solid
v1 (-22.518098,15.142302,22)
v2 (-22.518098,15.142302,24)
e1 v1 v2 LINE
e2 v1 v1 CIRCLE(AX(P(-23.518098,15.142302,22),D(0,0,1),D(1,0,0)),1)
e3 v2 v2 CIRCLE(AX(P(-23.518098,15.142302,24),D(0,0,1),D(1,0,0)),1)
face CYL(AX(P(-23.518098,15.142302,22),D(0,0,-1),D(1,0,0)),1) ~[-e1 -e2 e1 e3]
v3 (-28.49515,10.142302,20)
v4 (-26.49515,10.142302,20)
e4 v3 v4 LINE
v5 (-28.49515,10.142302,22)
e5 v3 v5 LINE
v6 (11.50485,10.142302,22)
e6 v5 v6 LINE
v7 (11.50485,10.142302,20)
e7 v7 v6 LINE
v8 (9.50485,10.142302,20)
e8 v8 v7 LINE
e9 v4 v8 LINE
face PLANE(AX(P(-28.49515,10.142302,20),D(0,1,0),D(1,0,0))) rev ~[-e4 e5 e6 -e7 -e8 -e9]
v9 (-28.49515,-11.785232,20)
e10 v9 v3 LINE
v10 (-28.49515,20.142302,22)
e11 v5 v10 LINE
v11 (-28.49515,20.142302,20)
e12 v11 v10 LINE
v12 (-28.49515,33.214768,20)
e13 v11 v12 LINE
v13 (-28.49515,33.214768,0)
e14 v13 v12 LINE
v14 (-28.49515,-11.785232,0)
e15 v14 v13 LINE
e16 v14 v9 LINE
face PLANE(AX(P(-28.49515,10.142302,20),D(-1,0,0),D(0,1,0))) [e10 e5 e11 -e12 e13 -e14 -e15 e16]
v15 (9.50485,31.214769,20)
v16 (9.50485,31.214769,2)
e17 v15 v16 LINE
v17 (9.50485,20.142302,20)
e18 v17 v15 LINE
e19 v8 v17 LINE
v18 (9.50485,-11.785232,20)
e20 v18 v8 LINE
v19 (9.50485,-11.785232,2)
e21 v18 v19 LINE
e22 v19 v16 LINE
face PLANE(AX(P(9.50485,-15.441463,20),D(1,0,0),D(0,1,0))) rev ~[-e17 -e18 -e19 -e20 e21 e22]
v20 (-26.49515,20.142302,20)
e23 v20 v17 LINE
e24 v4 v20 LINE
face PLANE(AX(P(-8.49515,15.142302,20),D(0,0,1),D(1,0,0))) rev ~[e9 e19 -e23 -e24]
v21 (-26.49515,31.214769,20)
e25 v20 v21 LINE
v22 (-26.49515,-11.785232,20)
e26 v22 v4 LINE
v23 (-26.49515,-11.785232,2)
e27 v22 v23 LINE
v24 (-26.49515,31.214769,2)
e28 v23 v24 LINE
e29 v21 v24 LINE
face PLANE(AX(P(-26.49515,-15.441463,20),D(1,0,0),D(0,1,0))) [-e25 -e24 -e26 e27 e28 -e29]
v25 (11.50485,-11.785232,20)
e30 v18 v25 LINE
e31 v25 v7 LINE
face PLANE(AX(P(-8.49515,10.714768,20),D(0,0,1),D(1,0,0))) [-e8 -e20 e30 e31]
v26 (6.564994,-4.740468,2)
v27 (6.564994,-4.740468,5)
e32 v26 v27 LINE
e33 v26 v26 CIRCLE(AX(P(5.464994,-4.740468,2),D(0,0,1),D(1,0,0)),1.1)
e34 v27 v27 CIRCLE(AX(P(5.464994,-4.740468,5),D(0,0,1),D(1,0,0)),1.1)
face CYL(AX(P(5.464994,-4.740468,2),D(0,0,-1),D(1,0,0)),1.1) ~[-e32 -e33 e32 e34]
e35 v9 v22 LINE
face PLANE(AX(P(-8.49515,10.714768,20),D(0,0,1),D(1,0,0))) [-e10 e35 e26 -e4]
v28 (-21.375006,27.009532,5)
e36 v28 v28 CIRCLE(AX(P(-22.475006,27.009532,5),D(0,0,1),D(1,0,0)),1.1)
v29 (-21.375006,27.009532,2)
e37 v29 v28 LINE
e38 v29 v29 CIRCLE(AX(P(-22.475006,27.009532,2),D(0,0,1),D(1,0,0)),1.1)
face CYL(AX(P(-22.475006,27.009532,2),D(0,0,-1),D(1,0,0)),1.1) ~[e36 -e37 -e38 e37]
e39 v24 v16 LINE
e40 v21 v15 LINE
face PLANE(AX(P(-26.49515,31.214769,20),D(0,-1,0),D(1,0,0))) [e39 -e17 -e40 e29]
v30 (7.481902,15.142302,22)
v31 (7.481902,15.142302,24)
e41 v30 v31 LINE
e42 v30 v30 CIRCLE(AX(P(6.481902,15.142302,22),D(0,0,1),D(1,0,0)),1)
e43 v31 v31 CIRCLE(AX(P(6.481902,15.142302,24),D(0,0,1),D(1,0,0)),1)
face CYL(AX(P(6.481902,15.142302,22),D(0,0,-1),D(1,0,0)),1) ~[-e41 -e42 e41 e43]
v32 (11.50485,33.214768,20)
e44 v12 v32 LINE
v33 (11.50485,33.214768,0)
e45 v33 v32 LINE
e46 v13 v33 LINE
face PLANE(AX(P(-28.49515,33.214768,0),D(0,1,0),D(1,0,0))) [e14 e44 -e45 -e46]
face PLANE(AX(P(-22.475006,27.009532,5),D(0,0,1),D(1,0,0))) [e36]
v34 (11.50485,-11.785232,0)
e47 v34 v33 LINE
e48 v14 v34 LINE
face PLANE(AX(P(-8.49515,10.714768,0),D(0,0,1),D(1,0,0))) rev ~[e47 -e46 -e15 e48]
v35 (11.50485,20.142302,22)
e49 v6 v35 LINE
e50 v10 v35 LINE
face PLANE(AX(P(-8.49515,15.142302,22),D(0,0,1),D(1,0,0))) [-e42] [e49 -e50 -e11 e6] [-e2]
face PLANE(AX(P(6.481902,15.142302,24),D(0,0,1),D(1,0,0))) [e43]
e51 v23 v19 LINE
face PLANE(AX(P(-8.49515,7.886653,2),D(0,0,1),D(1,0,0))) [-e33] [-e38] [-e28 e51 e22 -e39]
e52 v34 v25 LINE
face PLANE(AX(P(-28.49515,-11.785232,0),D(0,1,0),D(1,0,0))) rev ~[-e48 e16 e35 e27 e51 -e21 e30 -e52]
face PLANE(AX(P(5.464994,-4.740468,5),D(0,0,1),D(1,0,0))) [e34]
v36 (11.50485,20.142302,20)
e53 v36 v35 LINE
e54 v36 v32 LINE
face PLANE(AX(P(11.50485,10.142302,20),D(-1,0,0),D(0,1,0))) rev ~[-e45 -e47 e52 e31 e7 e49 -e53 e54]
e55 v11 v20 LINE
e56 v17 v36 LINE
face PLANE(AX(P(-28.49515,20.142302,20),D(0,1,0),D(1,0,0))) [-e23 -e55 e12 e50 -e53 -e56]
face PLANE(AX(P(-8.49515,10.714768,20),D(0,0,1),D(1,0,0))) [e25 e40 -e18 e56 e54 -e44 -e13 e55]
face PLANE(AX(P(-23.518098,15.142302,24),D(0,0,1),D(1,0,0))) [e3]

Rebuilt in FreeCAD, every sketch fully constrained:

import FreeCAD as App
import Part
import Sketcher

doc = App.newDocument("Part")
params = doc.addObject("Spreadsheet::Sheet", "Params")
for row, (alias, value) in enumerate([
    ("sketch1_width", "40 mm"),
    ("sketch1_height", "45 mm"),
    ("pad1_length", "20 mm"),
    ("sketch2_width", "36 mm"),
    ("pocket1_length", "18 mm"),
    ("sketch3_diameter", "2.2 mm"),
    ("pad2_length", "3 mm"),
    ("sketch4_width", "40 mm"),
    ("sketch4_height", "10 mm"),
    ("pad3_length", "2 mm"),
    ("sketch5_diameter", "2 mm"),
    ("pad4_length", "2 mm"),
], start=1):
    params.set(f"A{row}", alias)
    params.set(f"B{row}", "=" + value)
    params.setAlias(f"B{row}", alias)

body = doc.addObject("PartDesign::Body", "Body")

sketch1 = body.newObject("Sketcher::SketchObject", "Sketch")
sketch1.AttachmentSupport = (doc.getObject("XY_Plane"), [""])
sketch1.MapMode = "FlatFace"
sketch1.addGeometry(Part.LineSegment(App.Vector(-28, 33, 0), App.Vector(-28, -12, 0)), False)
sketch1.addGeometry(Part.LineSegment(App.Vector(-28, -12, 0), App.Vector(12, -12, 0)), False)
sketch1.addGeometry(Part.LineSegment(App.Vector(12, -12, 0), App.Vector(12, 33, 0)), False)
sketch1.addGeometry(Part.LineSegment(App.Vector(12, 33, 0), App.Vector(-28, 33, 0)), False)
sketch1.addConstraint(Sketcher.Constraint("Coincident", 0, 2, 1, 1))
sketch1.addConstraint(Sketcher.Constraint("Coincident", 1, 2, 2, 1))
sketch1.addConstraint(Sketcher.Constraint("Coincident", 2, 2, 3, 1))
sketch1.addConstraint(Sketcher.Constraint("Coincident", 3, 2, 0, 1))
sketch1.addConstraint(Sketcher.Constraint("Vertical", 0))
sketch1.addConstraint(Sketcher.Constraint("Horizontal", 1))
sketch1.addConstraint(Sketcher.Constraint("Vertical", 2))
sketch1.addConstraint(Sketcher.Constraint("Horizontal", 3))
sketch1.addConstraint(Sketcher.Constraint("DistanceX", 1, 1, 1, 2, 40.0))
sketch1.addConstraint(Sketcher.Constraint("DistanceY", 0, 2, 0, 1, 45.0))
sketch1.addConstraint(Sketcher.Constraint("DistanceX", 0, 2, -1, 1, 28.49515))
sketch1.addConstraint(Sketcher.Constraint("DistanceY", 0, 2, -1, 1, 11.785232))
sketch1.setExpression("Constraints[8]", "Params.sketch1_width")
sketch1.setExpression("Constraints[9]", "Params.sketch1_height")
pad1 = body.newObject("PartDesign::Pad", "Pad")
pad1.Profile = sketch1
pad1.setExpression("Length", "Params.pad1_length")

sketch2 = body.newObject("Sketcher::SketchObject", "Sketch001")
sketch2.AttachmentSupport = (doc.getObject("XY_Plane"), [""])
sketch2.MapMode = "FlatFace"
sketch2.AttachmentOffset = App.Placement(App.Vector(0, 0, 20), App.Rotation())
sketch2.addGeometry(Part.LineSegment(App.Vector(-26, 31, 0), App.Vector(-26, -15, 0)), False)
sketch2.addGeometry(Part.LineSegment(App.Vector(-26, -15, 0), App.Vector(10, -15, 0)), False)
sketch2.addGeometry(Part.LineSegment(App.Vector(10, -15, 0), App.Vector(10, 31, 0)), False)
sketch2.addGeometry(Part.LineSegment(App.Vector(10, 31, 0), App.Vector(-26, 31, 0)), False)
sketch2.addConstraint(Sketcher.Constraint("Coincident", 0, 2, 1, 1))
sketch2.addConstraint(Sketcher.Constraint("Coincident", 1, 2, 2, 1))
sketch2.addConstraint(Sketcher.Constraint("Coincident", 2, 2, 3, 1))
sketch2.addConstraint(Sketcher.Constraint("Coincident", 3, 2, 0, 1))
sketch2.addConstraint(Sketcher.Constraint("Vertical", 0))
sketch2.addConstraint(Sketcher.Constraint("Horizontal", 1))
sketch2.addConstraint(Sketcher.Constraint("Vertical", 2))
sketch2.addConstraint(Sketcher.Constraint("Horizontal", 3))
sketch2.addConstraint(Sketcher.Constraint("DistanceX", 1, 1, 1, 2, 36.0))
sketch2.addConstraint(Sketcher.Constraint("DistanceY", 0, 2, 0, 1, 46.656231))
sketch2.addConstraint(Sketcher.Constraint("DistanceX", 0, 2, -1, 1, 26.49515))
sketch2.addConstraint(Sketcher.Constraint("DistanceY", -1, 1, 2, 2, 31.214769))
sketch2.setExpression("Constraints[8]", "Params.sketch2_width")
pocket1 = body.newObject("PartDesign::Pocket", "Pocket")
pocket1.Profile = sketch2
pocket1.setExpression("Length", "Params.pocket1_length")

sketch3 = body.newObject("Sketcher::SketchObject", "Sketch002")
sketch3.AttachmentSupport = (doc.getObject("XY_Plane"), [""])
sketch3.MapMode = "FlatFace"
sketch3.AttachmentOffset = App.Placement(App.Vector(0, 0, 2), App.Rotation())
sketch3.addGeometry(Part.Circle(App.Vector(-22.5, 27, 0), App.Vector(0, 0, 1), 1.1), False)
sketch3.addGeometry(Part.Circle(App.Vector(5.5, -4.7, 0), App.Vector(0, 0, 1), 1.1), False)
sketch3.addConstraint(Sketcher.Constraint("Equal", 0, 1))
sketch3.addConstraint(Sketcher.Constraint("Diameter", 0, 2.2))
sketch3.addConstraint(Sketcher.Constraint("DistanceX", 0, 3, 1, 3, 27.94))
sketch3.addConstraint(Sketcher.Constraint("DistanceY", 1, 3, 0, 3, 31.75))
sketch3.addConstraint(Sketcher.Constraint("DistanceY", -1, 1, 0, 3, 27.009532))
sketch3.addConstraint(Sketcher.Constraint("DistanceX", 0, 3, -1, 1, 22.475006))
sketch3.setExpression("Constraints[1]", "Params.sketch3_diameter")
pad2 = body.newObject("PartDesign::Pad", "Pad001")
pad2.Profile = sketch3
pad2.setExpression("Length", "Params.pad2_length")

sketch4 = body.newObject("Sketcher::SketchObject", "Sketch003")
sketch4.AttachmentSupport = (doc.getObject("XY_Plane"), [""])
sketch4.MapMode = "FlatFace"
sketch4.AttachmentOffset = App.Placement(App.Vector(0, 0, 20), App.Rotation())
sketch4.addGeometry(Part.LineSegment(App.Vector(-28, 20, 0), App.Vector(-28, 10, 0)), False)
sketch4.addGeometry(Part.LineSegment(App.Vector(-28, 10, 0), App.Vector(12, 10, 0)), False)
sketch4.addGeometry(Part.LineSegment(App.Vector(12, 10, 0), App.Vector(12, 20, 0)), False)
sketch4.addGeometry(Part.LineSegment(App.Vector(12, 20, 0), App.Vector(-28, 20, 0)), False)
sketch4.addConstraint(Sketcher.Constraint("Coincident", 0, 2, 1, 1))
sketch4.addConstraint(Sketcher.Constraint("Coincident", 1, 2, 2, 1))
sketch4.addConstraint(Sketcher.Constraint("Coincident", 2, 2, 3, 1))
sketch4.addConstraint(Sketcher.Constraint("Coincident", 3, 2, 0, 1))
sketch4.addConstraint(Sketcher.Constraint("Vertical", 0))
sketch4.addConstraint(Sketcher.Constraint("Horizontal", 1))
sketch4.addConstraint(Sketcher.Constraint("Vertical", 2))
sketch4.addConstraint(Sketcher.Constraint("Horizontal", 3))
sketch4.addConstraint(Sketcher.Constraint("DistanceX", 1, 1, 1, 2, 40.0))
sketch4.addConstraint(Sketcher.Constraint("DistanceY", 0, 2, 0, 1, 10.0))
sketch4.addConstraint(Sketcher.Constraint("DistanceX", 0, 2, -1, 1, 28.49515))
sketch4.addConstraint(Sketcher.Constraint("DistanceY", -1, 1, 0, 2, 10.142302))
sketch4.setExpression("Constraints[8]", "Params.sketch4_width")
sketch4.setExpression("Constraints[9]", "Params.sketch4_height")
pad3 = body.newObject("PartDesign::Pad", "Pad002")
pad3.Profile = sketch4
pad3.setExpression("Length", "Params.pad3_length")

sketch5 = body.newObject("Sketcher::SketchObject", "Sketch004")
sketch5.AttachmentSupport = (doc.getObject("XY_Plane"), [""])
sketch5.MapMode = "FlatFace"
sketch5.AttachmentOffset = App.Placement(App.Vector(0, 0, 22), App.Rotation())
sketch5.addGeometry(Part.Circle(App.Vector(-23.5, 15.1, 0), App.Vector(0, 0, 1), 1), False)
sketch5.addGeometry(Part.Circle(App.Vector(6.5, 15.1, 0), App.Vector(0, 0, 1), 1), False)
sketch5.addConstraint(Sketcher.Constraint("Equal", 0, 1))
sketch5.addConstraint(Sketcher.Constraint("Horizontal", 0, 3, 1, 3))
sketch5.addConstraint(Sketcher.Constraint("Diameter", 0, 2.0))
sketch5.addConstraint(Sketcher.Constraint("DistanceX", 0, 3, 1, 3, 30.0))
sketch5.addConstraint(Sketcher.Constraint("DistanceX", -1, 1, 1, 3, 6.481902))
sketch5.addConstraint(Sketcher.Constraint("DistanceY", -1, 1, 0, 3, 15.142302))
sketch5.setExpression("Constraints[2]", "Params.sketch5_diameter")
pad4 = body.newObject("PartDesign::Pad", "Pad003")
pad4.Profile = sketch5
pad4.setExpression("Length", "Params.pad4_length")

doc.recompute()
